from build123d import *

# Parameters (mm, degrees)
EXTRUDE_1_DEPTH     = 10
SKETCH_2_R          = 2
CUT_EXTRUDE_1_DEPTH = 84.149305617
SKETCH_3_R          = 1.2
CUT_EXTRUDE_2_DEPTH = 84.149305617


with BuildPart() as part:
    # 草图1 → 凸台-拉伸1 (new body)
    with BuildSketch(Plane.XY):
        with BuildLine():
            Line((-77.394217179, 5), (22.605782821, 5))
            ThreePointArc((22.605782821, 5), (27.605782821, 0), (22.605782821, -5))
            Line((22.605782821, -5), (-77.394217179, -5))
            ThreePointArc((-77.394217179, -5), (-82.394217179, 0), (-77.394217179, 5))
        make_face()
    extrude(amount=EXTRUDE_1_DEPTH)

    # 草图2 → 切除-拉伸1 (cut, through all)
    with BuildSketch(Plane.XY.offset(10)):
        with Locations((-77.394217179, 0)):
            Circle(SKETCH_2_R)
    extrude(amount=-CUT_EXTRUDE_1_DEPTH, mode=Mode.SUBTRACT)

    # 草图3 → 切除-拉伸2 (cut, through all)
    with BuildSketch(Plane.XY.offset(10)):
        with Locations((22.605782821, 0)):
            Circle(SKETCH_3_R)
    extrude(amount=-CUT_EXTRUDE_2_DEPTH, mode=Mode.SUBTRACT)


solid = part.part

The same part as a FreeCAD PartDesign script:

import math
import FreeCAD as App
import Part
import Sketcher
from FreeCAD import Vector
Q = App.Units.Quantity

doc = App.newDocument("Part")
body = doc.addObject("PartDesign::Body", "Body")

sketch1 = body.newObject("Sketcher::SketchObject", "Sketch")
sketch1.AttachmentSupport = (doc.getObject("XY_Plane"), [""])
sketch1.MapMode = "FlatFace"
sketch1.addGeometry([
    Part.LineSegment(Vector(23, 5, 0), Vector(-77, 5, 0)),
    Part.ArcOfCircle(Part.Circle(Vector(-77, 0, 0), Vector(0, 0, 1), 5), math.radians(90), math.radians(270)),
    Part.LineSegment(Vector(-77, -5, 0), Vector(23, -5, 0)),
    Part.ArcOfCircle(Part.Circle(Vector(23, 0, 0), Vector(0, 0, 1), 5), math.radians(-90), math.radians(90)),
], False)
sketch1.addConstraint([
    Sketcher.Constraint("Tangent", 0, 2, 1, 1),
    Sketcher.Constraint("Tangent", 1, 2, 2, 1),
    Sketcher.Constraint("Tangent", 2, 2, 3, 1),
    Sketcher.Constraint("Tangent", 3, 2, 0, 1),
    Sketcher.Constraint("Horizontal", 0),
    Sketcher.Constraint("Horizontal", 2),
    Sketcher.Constraint("PointOnObject", 1, 3, -1),
    Sketcher.Constraint("Radius", 1, Q("5 mm")),
    Sketcher.Constraint("DistanceX", 0, 2, 0, 1, Q("100 mm")),
    Sketcher.Constraint("DistanceX", 1, 3, -1, 1, Q("77.394217 mm")),
])
pad1 = body.newObject("PartDesign::Pad", "Pad")
pad1.Profile = sketch1
pad1.Length = 10

sketch2 = body.newObject("Sketcher::SketchObject", "Sketch001")
sketch2.AttachmentSupport = (doc.getObject("XY_Plane"), [""])
sketch2.MapMode = "FlatFace"
sketch2.AttachmentOffset = App.Placement(Vector(0, 0, 10), App.Rotation())
sketch2.addGeometry(Part.Circle(Vector(-77.4, 0, 0), Vector(0, 0, 1), 2), False)
sketch2.addConstraint([
    Sketcher.Constraint("PointOnObject", 0, 3, -1),
    Sketcher.Constraint("Diameter", 0, Q("4 mm")),
    Sketcher.Constraint("DistanceX", 0, 3, -1, 1, Q("77.394217 mm")),
])
pocket1 = body.newObject("PartDesign::Pocket", "Pocket")
pocket1.Profile = sketch2
pocket1.Type = "ThroughAll"

sketch3 = body.newObject("Sketcher::SketchObject", "Sketch002")
sketch3.AttachmentSupport = (doc.getObject("XY_Plane"), [""])
sketch3.MapMode = "FlatFace"
sketch3.AttachmentOffset = App.Placement(Vector(0, 0, 10), App.Rotation())
sketch3.addGeometry(Part.Circle(Vector(22.6, 0, 0), Vector(0, 0, 1), 1.2), False)
sketch3.addConstraint([
    Sketcher.Constraint("PointOnObject", 0, 3, -1),
    Sketcher.Constraint("Diameter", 0, Q("2.4 mm")),
    Sketcher.Constraint("DistanceX", -1, 1, 0, 3, Q("22.605783 mm")),
])
pocket2 = body.newObject("PartDesign::Pocket", "Pocket001")
pocket2.Profile = sketch3
pocket2.Type = "ThroughAll"

doc.recompute()
